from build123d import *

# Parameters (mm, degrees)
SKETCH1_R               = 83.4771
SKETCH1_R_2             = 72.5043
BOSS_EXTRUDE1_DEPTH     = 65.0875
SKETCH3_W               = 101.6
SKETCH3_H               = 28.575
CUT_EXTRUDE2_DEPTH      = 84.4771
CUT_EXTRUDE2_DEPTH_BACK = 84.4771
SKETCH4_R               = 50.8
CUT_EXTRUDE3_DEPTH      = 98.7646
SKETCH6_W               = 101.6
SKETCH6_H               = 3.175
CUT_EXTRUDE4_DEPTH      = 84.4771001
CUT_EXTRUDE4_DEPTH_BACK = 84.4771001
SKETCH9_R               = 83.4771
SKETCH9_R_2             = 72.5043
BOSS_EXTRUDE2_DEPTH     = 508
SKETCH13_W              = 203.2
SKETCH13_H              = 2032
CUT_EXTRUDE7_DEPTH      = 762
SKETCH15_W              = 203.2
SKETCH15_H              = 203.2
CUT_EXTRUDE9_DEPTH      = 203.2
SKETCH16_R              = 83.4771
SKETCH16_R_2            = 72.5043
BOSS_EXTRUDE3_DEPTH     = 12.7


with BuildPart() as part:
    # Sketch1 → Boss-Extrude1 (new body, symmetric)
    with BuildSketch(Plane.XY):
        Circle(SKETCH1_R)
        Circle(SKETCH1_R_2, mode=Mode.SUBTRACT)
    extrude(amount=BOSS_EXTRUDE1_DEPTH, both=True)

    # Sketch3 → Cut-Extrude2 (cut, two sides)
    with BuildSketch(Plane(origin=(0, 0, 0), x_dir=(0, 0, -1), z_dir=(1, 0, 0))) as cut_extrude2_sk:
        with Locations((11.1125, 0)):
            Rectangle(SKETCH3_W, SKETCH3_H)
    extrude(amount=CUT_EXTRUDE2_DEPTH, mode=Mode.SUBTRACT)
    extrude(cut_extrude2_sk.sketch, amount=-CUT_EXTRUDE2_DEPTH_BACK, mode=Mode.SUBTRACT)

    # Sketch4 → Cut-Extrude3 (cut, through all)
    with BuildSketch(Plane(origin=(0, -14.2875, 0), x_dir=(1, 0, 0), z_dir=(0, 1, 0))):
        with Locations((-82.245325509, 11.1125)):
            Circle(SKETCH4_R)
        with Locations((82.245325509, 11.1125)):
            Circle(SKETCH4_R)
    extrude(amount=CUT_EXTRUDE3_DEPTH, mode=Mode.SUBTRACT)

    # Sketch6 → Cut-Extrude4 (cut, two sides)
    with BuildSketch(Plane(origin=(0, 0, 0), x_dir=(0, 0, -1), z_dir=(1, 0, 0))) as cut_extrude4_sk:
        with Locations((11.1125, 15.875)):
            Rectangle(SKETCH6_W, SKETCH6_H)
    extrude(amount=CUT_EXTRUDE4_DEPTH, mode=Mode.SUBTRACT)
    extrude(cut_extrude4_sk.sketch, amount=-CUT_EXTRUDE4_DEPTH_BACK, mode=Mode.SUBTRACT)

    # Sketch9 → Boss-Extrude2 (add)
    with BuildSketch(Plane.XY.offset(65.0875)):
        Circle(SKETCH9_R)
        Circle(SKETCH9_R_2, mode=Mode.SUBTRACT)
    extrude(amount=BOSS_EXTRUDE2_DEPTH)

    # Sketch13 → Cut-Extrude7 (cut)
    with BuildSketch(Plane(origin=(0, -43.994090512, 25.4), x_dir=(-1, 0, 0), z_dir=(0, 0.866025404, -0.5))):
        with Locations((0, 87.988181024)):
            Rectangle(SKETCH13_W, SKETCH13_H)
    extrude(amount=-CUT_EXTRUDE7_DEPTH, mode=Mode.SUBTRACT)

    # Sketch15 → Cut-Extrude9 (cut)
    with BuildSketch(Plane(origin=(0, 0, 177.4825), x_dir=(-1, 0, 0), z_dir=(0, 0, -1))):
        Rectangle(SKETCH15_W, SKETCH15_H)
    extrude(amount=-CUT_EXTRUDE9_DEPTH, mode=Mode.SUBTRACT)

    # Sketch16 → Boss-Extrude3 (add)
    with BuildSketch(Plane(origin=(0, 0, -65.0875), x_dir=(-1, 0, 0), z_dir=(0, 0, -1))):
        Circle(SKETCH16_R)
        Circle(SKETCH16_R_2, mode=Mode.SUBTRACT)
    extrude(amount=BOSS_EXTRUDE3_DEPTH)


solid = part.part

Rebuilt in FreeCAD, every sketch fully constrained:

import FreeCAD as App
import Part
import Sketcher
from FreeCAD import Vector
Q = App.Units.Quantity


def add_polygon(sketch, points):
    """Adds a closed chain of lines whose ends are joined by coincident constraints."""
    first, n = sketch.GeometryCount, len(points)
    for a, b in zip(points, points[1:] + points[:1]):
        sketch.addGeometry(Part.LineSegment(App.Vector(*a, 0), App.Vector(*b, 0)), False)
    for i in range(n):
        sketch.addConstraint(Sketcher.Constraint("Coincident", first + i, 2, first + (i + 1) % n, 1))

doc = App.newDocument("Part")
body = doc.addObject("PartDesign::Body", "Body")

sketch1 = body.newObject("Sketcher::SketchObject", "Sketch")
sketch1.AttachmentSupport = (doc.getObject("XY_Plane"), [""])
sketch1.MapMode = "FlatFace"
sketch1.addGeometry([
    Part.Circle(Vector(0, 0, 0), Vector(0, 0, 1), 83.4771),
    Part.Circle(Vector(0, 0, 0), Vector(0, 0, 1), 72.5043),
], False)
sketch1.addConstraint([
    Sketcher.Constraint("Coincident", 0, 3, -1, 1),
    Sketcher.Constraint("Coincident", 1, 3, -1, 1),
    Sketcher.Constraint("Diameter", 0, Q("6.573 in")),
    Sketcher.Constraint("Diameter", 1, Q("5.709 in")),
])
pad1 = body.newObject("PartDesign::Pad", "Pad")
pad1.Profile = sketch1
pad1.Length = Q("5.125 in")
pad1.Midplane = True

sketch2 = body.newObject("Sketcher::SketchObject", "Sketch001")
sketch2.AttachmentSupport = (doc.getObject("YZ_Plane"), [""])
sketch2.MapMode = "FlatFace"
add_polygon(sketch2, [(14.2875, 39.6875), (-14.2875, 39.6875), (-14.2875, -61.9125), (14.2875, -61.9125)])
sketch2.addConstraint([
    Sketcher.Constraint("Horizontal", 0),
    Sketcher.Constraint("Vertical", 1),
    Sketcher.Constraint("Horizontal", 2),
    Sketcher.Constraint("Vertical", 3),
    Sketcher.Constraint("DistanceY", 1, 2, 1, 1, Q("4 in")),
    Sketcher.Constraint("DistanceX", 0, 2, 0, 1, Q("1.125 in")),
    Sketcher.Constraint("DistanceX", 0, 2, -1, 1, Q("0.5625 in")),
    Sketcher.Constraint("DistanceY", -1, 1, 0, 2, Q("1.5625 in")),
])
pocket1 = body.newObject("PartDesign::Pocket", "Pocket")
pocket1.Profile = sketch2
pocket1.Type = "ThroughAll"
pocket1.Midplane = True

sketch3 = body.newObject("Sketcher::SketchObject", "Sketch002")
sketch3.AttachmentSupport = (doc.getObject("XZ_Plane"), [""])
sketch3.MapMode = "FlatFace"
sketch3.AttachmentOffset = App.Placement(Vector(0, 0, 0.5625 * 25.4), App.Rotation())
sketch3.addGeometry([
    Part.Circle(Vector(-82.245326, -11.1125, 0), Vector(0, 0, 1), 50.8),
    Part.Circle(Vector(82.245326, -11.1125, 0), Vector(0, 0, 1), 50.8),
], False)
sketch3.addConstraint([
    Sketcher.Constraint("Equal", 0, 1),
    Sketcher.Constraint("Symmetric", 0, 3, 1, 3, -2),
    Sketcher.Constraint("Diameter", 0, Q("4 in")),
    Sketcher.Constraint("DistanceY", 0, 3, -1, 1, Q("0.4375 in")),
    Sketcher.Constraint("DistanceX", 0, 3, 1, 3, Q("164.490651 mm")),
])
pocket2 = body.newObject("PartDesign::Pocket", "Pocket001")
pocket2.Profile = sketch3
pocket2.Type = "ThroughAll"

sketch4 = body.newObject("Sketcher::SketchObject", "Sketch003")
sketch4.AttachmentSupport = (doc.getObject("YZ_Plane"), [""])
sketch4.MapMode = "FlatFace"
add_polygon(sketch4, [(17.4625, 39.6875), (14.2875, 39.6875), (14.2875, -61.9125), (17.4625, -61.9125)])
sketch4.addConstraint([
    Sketcher.Constraint("Horizontal", 0),
    Sketcher.Constraint("Vertical", 1),
    Sketcher.Constraint("Horizontal", 2),
    Sketcher.Constraint("Vertical", 3),
    Sketcher.Constraint("DistanceY", 1, 2, 1, 1, Q("4 in")),
    Sketcher.Constraint("DistanceX", 0, 2, 0, 1, Q("0.125 in")),
    Sketcher.Constraint("DistanceX", -1, 1, 0, 2, Q("0.5625 in")),
    Sketcher.Constraint("DistanceY", -1, 1, 0, 2, Q("1.5625 in")),
])
pocket3 = body.newObject("PartDesign::Pocket", "Pocket002")
pocket3.Profile = sketch4
pocket3.Type = "ThroughAll"
pocket3.Midplane = True

sketch5 = body.newObject("Sketcher::SketchObject", "Sketch004")
sketch5.AttachmentSupport = (doc.getObject("XY_Plane"), [""])
sketch5.MapMode = "FlatFace"
sketch5.AttachmentOffset = App.Placement(Vector(0, 0, 2.5625 * 25.4), App.Rotation())
sketch5.addGeometry([
    Part.Circle(Vector(0, 0, 0), Vector(0, 0, 1), 83.4771),
    Part.Circle(Vector(0, 0, 0), Vector(0, 0, 1), 72.5043),
], False)
sketch5.addConstraint([
    Sketcher.Constraint("Coincident", 0, 3, -1, 1),
    Sketcher.Constraint("Coincident", 1, 3, -1, 1),
    Sketcher.Constraint("Diameter", 0, Q("6.573 in")),
    Sketcher.Constraint("Diameter", 1, Q("5.709 in")),
])
pad2 = body.newObject("PartDesign::Pad", "Pad001")
pad2.Profile = sketch5
pad2.Length = Q("20 in")

sketch6 = body.newObject("Sketcher::SketchObject", "Sketch005")
sketch6.Placement = App.Placement(Vector(0, -43.994091, 25.4), App.Rotation(Vector(-1, 0, 0), Vector(0, 0.5, 0.866025404), Vector(0, 0.866025404, -0.5), "ZXY"))
add_polygon(sketch6, [(-101.6, 1103.988181), (-101.6, -928.011819), (101.6, -928.011819), (101.6, 1103.988181)])
sketch6.addConstraint([
    Sketcher.Constraint("Vertical", 0),
    Sketcher.Constraint("Horizontal", 1),
    Sketcher.Constraint("Vertical", 2),
    Sketcher.Constraint("Horizontal", 3),
    Sketcher.Constraint("DistanceX", 1, 1, 1, 2, Q("8 in")),
    Sketcher.Constraint("DistanceY", 0, 2, 0, 1, Q("80 in")),
    Sketcher.Constraint("DistanceX", 0, 2, -1, 1, Q("4 in")),
    Sketcher.Constraint("DistanceY", 0, 2, -1, 1, Q("928.011819 mm")),
])
pocket4 = body.newObject("PartDesign::Pocket", "Pocket003")
pocket4.Profile = sketch6
pocket4.Length = Q("30 in")

sketch7 = body.newObject("Sketcher::SketchObject", "Sketch006")
sketch7.AttachmentSupport = (doc.getObject("XY_Plane"), [""])
sketch7.MapMode = "FlatFace"
sketch7.AttachmentOffset = App.Placement(Vector(0, 0, 6.9875 * 25.4), App.Rotation())
add_polygon(sketch7, [(101.6, 101.6), (101.6, -101.6), (-101.6, -101.6), (-101.6, 101.6)])
sketch7.addConstraint([
    Sketcher.Constraint("Vertical", 0),
    Sketcher.Constraint("Horizontal", 1),
    Sketcher.Constraint("Vertical", 2),
    Sketcher.Constraint("Horizontal", 3),
    Sketcher.Constraint("Symmetric", 0, 2, 2, 2, -1, 1),
    Sketcher.Constraint("Equal", 3, 0),
    Sketcher.Constraint("DistanceX", 1, 2, 1, 1, Q("8 in")),
])
pocket5 = body.newObject("PartDesign::Pocket", "Pocket004")
pocket5.Profile = sketch7
pocket5.Length = Q("8 in")
pocket5.Reversed = True

sketch8 = body.newObject("Sketcher::SketchObject", "Sketch007")
sketch8.AttachmentSupport = (doc.getObject("XY_Plane"), [""])
sketch8.MapMode = "FlatFace"
sketch8.AttachmentOffset = App.Placement(Vector(0, 0, -2.5625 * 25.4), App.Rotation())
sketch8.addGeometry([
    Part.Circle(Vector(0, 0, 0), Vector(0, 0, 1), 83.4771),
    Part.Circle(Vector(0, 0, 0), Vector(0, 0, 1), 72.5043),
], False)
sketch8.addConstraint([
    Sketcher.Constraint("Coincident", 0, 3, -1, 1),
    Sketcher.Constraint("Coincident", 1, 3, -1, 1),
    Sketcher.Constraint("Diameter", 0, Q("6.573 in")),
    Sketcher.Constraint("Diameter", 1, Q("5.709 in")),
])
pad3 = body.newObject("PartDesign::Pad", "Pad002")
pad3.Profile = sketch8
pad3.Length = Q("0.5 in")
pad3.Reversed = True

doc.recompute()
